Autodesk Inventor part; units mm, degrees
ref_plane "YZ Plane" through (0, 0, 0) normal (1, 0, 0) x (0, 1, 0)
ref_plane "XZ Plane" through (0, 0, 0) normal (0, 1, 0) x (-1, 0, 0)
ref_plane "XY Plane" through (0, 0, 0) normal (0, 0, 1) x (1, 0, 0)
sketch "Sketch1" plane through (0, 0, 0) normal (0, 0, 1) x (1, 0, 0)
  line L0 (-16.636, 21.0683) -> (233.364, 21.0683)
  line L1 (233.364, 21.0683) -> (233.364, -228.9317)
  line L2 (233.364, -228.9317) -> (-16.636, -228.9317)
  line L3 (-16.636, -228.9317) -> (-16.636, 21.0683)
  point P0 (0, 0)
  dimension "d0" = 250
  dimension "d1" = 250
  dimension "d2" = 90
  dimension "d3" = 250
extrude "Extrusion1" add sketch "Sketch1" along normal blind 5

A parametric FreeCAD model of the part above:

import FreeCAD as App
import Part
import Sketcher
Q = App.Units.Quantity

doc = App.newDocument("Part")
body = doc.addObject("PartDesign::Body", "Body")

# Sketch on XY plane
sketch1 = doc.addObject("Sketcher::SketchObject", "Sketch")
body.addObject(sketch1)
sketch1.AttachmentSupport = (doc.XY_Plane, [""])
sketch1.MapMode = "FlatFace"
sketch1.addGeometry(Part.LineSegment(App.Vector(233.364, 21.0683, 0), App.Vector(-16.636, 21.0683, 0)), False)
sketch1.addGeometry(Part.LineSegment(App.Vector(-16.636, 21.0683, 0), App.Vector(-16.636, -228.9317, 0)), False)
sketch1.addGeometry(Part.LineSegment(App.Vector(-16.636, -228.9317, 0), App.Vector(233.364, -228.9317, 0)), False)
sketch1.addGeometry(Part.LineSegment(App.Vector(233.364, -228.9317, 0), App.Vector(233.364, 21.0683, 0)), False)
sketch1.addConstraint(Sketcher.Constraint("Coincident", 0, 2, 1, 1))
sketch1.addConstraint(Sketcher.Constraint("Coincident", 1, 2, 2, 1))
sketch1.addConstraint(Sketcher.Constraint("Coincident", 2, 2, 3, 1))
sketch1.addConstraint(Sketcher.Constraint("Coincident", 3, 2, 0, 1))
sketch1.addConstraint(Sketcher.Constraint("Horizontal", 0))
sketch1.addConstraint(Sketcher.Constraint("Vertical", 1))
sketch1.addConstraint(Sketcher.Constraint("Horizontal", 2))
sketch1.addConstraint(Sketcher.Constraint("Vertical", 3))
sketch1.addConstraint(Sketcher.Constraint("Equal", 2, 1))
sketch1.addConstraint(Sketcher.Constraint("DistanceX", 0, 2, 0, 1, Q("250 mm")))
sketch1.addConstraint(Sketcher.Constraint("DistanceX", 0, 2, -1, 1, Q("16.636 mm")))
sketch1.addConstraint(Sketcher.Constraint("DistanceY", -1, 1, 0, 2, Q("21.0683 mm")))
pad1 = doc.addObject("PartDesign::Pad", "Pad")
body.addObject(pad1)
pad1.Profile = sketch1
pad1.Length = 5

doc.recompute()
